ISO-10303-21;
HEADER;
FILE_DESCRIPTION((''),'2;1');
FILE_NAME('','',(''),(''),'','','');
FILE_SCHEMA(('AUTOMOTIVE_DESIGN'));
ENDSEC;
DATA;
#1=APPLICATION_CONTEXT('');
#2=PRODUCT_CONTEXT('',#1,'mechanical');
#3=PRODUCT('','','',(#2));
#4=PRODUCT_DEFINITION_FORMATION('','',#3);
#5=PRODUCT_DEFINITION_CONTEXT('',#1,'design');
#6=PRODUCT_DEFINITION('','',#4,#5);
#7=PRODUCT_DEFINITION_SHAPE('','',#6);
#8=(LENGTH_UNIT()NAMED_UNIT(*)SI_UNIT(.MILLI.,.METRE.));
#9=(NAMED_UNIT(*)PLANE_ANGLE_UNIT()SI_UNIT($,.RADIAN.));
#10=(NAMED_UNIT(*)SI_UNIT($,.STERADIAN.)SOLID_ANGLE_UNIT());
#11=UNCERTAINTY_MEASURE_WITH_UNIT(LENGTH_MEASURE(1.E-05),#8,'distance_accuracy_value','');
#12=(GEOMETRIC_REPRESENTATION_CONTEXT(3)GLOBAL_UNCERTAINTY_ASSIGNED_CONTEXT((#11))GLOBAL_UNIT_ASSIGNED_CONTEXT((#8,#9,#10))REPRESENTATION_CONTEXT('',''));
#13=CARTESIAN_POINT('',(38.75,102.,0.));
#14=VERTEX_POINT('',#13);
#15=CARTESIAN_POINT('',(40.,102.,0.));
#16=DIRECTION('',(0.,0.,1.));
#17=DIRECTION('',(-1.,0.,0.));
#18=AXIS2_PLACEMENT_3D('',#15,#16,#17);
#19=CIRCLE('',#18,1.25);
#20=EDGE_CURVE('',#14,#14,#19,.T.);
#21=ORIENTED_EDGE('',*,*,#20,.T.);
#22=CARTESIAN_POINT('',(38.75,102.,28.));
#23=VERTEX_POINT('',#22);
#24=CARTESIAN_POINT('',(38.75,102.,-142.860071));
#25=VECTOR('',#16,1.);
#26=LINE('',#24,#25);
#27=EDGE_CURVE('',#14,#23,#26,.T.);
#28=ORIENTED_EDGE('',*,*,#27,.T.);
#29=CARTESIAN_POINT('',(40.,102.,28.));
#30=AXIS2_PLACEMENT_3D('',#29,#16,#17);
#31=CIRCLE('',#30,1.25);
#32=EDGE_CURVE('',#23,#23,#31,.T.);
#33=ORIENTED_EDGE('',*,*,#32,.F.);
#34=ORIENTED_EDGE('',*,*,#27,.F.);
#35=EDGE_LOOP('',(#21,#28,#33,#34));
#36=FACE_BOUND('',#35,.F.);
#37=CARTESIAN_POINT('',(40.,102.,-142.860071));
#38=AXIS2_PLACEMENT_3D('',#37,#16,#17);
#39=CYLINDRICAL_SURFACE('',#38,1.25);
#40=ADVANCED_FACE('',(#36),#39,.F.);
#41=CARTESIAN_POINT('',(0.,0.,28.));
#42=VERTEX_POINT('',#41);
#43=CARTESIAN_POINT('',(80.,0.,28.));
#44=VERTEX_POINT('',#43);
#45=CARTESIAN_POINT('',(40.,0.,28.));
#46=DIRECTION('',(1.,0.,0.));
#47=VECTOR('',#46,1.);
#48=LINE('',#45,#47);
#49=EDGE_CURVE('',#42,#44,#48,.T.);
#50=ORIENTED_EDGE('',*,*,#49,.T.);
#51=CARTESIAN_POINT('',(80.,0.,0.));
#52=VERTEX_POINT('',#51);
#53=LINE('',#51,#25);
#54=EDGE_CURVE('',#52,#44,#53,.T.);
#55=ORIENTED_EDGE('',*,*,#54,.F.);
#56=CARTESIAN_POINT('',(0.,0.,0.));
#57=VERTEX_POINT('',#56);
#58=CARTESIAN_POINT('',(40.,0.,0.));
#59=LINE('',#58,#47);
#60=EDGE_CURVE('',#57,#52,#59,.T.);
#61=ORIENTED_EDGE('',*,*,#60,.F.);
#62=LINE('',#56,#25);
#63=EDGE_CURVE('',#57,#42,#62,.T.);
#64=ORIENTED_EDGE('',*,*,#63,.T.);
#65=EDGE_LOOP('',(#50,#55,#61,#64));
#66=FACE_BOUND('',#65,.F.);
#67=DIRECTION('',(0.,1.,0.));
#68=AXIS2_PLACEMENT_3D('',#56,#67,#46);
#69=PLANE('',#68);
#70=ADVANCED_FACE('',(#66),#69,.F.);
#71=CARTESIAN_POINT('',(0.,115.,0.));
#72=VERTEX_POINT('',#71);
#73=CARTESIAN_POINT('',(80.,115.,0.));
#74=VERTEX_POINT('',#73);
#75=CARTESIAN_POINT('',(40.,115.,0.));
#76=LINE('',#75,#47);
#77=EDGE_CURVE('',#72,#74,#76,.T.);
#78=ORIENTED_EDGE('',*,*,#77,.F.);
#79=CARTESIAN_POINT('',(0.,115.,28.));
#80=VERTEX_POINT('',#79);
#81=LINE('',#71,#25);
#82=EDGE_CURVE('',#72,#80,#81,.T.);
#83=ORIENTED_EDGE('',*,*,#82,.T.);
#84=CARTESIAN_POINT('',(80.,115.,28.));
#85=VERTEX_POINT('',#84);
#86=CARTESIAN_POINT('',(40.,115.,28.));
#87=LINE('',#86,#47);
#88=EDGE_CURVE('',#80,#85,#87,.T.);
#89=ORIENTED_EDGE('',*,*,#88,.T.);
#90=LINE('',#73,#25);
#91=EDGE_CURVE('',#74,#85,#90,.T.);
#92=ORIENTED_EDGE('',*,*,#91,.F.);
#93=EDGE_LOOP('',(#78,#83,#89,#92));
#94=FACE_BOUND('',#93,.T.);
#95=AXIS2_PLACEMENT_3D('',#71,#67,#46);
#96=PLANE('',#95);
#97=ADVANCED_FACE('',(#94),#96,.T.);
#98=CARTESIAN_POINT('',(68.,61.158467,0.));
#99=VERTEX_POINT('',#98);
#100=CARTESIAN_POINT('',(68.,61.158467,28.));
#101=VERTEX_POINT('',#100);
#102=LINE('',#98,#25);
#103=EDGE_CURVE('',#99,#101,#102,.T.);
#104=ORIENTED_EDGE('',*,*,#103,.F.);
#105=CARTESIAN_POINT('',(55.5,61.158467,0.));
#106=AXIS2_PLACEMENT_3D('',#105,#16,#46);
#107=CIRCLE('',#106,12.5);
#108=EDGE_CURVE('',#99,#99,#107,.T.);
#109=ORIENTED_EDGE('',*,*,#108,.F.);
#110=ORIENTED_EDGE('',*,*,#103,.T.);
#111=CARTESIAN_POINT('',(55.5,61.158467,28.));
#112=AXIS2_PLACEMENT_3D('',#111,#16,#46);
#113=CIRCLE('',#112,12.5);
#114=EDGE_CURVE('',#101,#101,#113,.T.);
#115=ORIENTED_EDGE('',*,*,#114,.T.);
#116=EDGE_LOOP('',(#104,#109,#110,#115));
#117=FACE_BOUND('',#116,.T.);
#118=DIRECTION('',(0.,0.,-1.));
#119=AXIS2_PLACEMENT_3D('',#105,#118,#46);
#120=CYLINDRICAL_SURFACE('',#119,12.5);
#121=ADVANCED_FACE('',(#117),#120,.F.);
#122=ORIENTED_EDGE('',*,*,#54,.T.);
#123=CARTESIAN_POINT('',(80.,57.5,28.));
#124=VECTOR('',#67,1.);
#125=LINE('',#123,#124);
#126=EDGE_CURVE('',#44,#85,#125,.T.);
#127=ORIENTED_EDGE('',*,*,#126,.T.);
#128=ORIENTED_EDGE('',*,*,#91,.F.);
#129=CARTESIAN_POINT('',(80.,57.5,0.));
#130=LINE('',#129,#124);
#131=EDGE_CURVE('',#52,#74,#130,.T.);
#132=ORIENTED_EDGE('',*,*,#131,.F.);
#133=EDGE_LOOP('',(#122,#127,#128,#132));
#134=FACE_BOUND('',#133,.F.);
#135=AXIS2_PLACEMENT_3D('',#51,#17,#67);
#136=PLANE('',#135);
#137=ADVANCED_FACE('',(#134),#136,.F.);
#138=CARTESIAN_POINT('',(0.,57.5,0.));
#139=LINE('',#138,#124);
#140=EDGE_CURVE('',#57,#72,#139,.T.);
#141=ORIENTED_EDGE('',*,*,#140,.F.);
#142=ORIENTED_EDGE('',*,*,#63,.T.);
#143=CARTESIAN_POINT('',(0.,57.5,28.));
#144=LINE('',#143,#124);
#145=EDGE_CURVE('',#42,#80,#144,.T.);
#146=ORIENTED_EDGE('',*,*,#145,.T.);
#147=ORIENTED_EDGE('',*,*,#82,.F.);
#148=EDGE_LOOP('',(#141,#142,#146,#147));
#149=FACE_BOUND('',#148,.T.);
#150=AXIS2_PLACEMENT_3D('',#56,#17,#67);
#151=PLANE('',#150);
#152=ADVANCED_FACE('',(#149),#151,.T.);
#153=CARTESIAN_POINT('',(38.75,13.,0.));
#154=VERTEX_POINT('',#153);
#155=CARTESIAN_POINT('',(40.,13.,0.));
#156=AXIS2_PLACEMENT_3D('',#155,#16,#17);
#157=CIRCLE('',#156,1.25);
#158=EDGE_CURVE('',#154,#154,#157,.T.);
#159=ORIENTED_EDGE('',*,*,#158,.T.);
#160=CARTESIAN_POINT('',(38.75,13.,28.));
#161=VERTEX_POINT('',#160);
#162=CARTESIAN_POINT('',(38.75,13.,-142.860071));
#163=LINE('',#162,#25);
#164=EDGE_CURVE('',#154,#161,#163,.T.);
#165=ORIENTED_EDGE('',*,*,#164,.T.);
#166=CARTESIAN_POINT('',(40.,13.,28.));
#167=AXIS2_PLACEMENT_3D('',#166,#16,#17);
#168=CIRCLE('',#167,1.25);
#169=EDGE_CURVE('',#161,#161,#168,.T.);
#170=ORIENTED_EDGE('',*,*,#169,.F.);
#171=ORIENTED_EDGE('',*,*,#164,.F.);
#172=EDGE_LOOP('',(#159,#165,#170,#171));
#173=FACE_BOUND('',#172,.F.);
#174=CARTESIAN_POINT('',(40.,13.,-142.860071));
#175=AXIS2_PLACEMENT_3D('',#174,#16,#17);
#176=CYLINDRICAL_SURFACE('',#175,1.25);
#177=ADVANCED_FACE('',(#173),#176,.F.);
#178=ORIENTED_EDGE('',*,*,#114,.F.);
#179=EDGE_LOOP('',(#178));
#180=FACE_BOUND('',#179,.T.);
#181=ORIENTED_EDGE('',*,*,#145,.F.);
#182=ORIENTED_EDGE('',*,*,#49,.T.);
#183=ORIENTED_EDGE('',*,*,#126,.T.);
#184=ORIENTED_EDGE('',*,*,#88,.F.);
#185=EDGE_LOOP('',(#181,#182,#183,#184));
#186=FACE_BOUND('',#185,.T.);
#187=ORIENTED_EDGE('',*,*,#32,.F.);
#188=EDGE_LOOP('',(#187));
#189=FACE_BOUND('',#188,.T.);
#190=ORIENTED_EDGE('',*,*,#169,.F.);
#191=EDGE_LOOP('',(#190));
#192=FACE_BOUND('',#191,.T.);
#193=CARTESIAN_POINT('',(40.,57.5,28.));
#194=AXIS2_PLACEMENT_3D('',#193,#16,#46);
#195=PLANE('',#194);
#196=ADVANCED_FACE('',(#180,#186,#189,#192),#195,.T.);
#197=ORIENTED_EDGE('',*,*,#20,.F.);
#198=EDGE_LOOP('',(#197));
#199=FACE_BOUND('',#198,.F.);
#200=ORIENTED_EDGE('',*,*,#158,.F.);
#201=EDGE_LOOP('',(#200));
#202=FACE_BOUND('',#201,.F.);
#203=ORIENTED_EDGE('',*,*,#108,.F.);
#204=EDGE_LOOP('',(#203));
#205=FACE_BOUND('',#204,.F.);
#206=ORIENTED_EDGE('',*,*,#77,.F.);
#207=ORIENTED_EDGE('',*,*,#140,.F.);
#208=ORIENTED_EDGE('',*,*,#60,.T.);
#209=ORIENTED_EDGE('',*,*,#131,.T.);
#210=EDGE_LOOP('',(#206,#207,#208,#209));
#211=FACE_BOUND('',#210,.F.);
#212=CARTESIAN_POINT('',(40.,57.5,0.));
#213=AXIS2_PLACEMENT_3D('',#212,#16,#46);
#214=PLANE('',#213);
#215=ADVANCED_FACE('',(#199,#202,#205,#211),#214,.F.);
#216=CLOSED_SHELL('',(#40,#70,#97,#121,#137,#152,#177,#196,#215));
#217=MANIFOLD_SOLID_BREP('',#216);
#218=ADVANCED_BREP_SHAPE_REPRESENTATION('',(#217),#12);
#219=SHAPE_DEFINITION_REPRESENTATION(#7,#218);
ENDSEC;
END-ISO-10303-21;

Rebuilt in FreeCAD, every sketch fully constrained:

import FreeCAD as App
import Part
import Sketcher

doc = App.newDocument("Part")
body = doc.addObject("PartDesign::Body", "Body")

sketch1 = body.newObject("Sketcher::SketchObject", "Sketch")
sketch1.AttachmentSupport = (doc.getObject("XY_Plane"), [""])
sketch1.MapMode = "FlatFace"
sketch1.addGeometry(Part.LineSegment(App.Vector(0, 115, 0), App.Vector(0, 0, 0)), False)
sketch1.addGeometry(Part.LineSegment(App.Vector(0, 0, 0), App.Vector(80, 0, 0)), False)
sketch1.addGeometry(Part.LineSegment(App.Vector(80, 0, 0), App.Vector(80, 115, 0)), False)
sketch1.addGeometry(Part.LineSegment(App.Vector(80, 115, 0), App.Vector(0, 115, 0)), False)
sketch1.addGeometry(Part.Circle(App.Vector(56, 61, 0), App.Vector(0, 0, 1), 12), False)
sketch1.addConstraint(Sketcher.Constraint("Coincident", 0, 2, 1, 1))
sketch1.addConstraint(Sketcher.Constraint("Coincident", 1, 2, 2, 1))
sketch1.addConstraint(Sketcher.Constraint("Coincident", 2, 2, 3, 1))
sketch1.addConstraint(Sketcher.Constraint("Coincident", 3, 2, 0, 1))
sketch1.addConstraint(Sketcher.Constraint("Vertical", 0))
sketch1.addConstraint(Sketcher.Constraint("Horizontal", 1))
sketch1.addConstraint(Sketcher.Constraint("Vertical", 2))
sketch1.addConstraint(Sketcher.Constraint("Horizontal", 3))
sketch1.addConstraint(Sketcher.Constraint("Coincident", 0, 2, -1, 1))
sketch1.addConstraint(Sketcher.Constraint("Diameter", 4, 25.0))
sketch1.addConstraint(Sketcher.Constraint("DistanceX", 1, 1, 1, 2, 80.0))
sketch1.addConstraint(Sketcher.Constraint("DistanceY", 0, 2, 0, 1, 115.0))
sketch1.addConstraint(Sketcher.Constraint("DistanceX", -1, 1, 4, 3, 55.5))
sketch1.addConstraint(Sketcher.Constraint("DistanceY", -1, 1, 4, 3, 61.158467))
pad1 = body.newObject("PartDesign::Pad", "Pad")
pad1.Profile = sketch1
pad1.Length = 28

sketch2 = body.newObject("Sketcher::SketchObject", "Sketch001")
sketch2.AttachmentSupport = (doc.getObject("XY_Plane"), [""])
sketch2.MapMode = "FlatFace"
sketch2.addGeometry(Part.Circle(App.Vector(40, 13, 0), App.Vector(0, 0, 1), 1.2), False)
sketch2.addGeometry(Part.Circle(App.Vector(40, 102, 0), App.Vector(0, 0, 1), 1.2), False)
sketch2.addConstraint(Sketcher.Constraint("Equal", 0, 1))
sketch2.addConstraint(Sketcher.Constraint("Vertical", 0, 3, 1, 3))
sketch2.addConstraint(Sketcher.Constraint("Diameter", 0, 2.5))
sketch2.addConstraint(Sketcher.Constraint("DistanceX", -1, 1, 0, 3, 40.0))
sketch2.addConstraint(Sketcher.Constraint("DistanceY", -1, 1, 0, 3, 13.0))
sketch2.addConstraint(Sketcher.Constraint("DistanceY", -1, 1, 1, 3, 102.0))
doc.recompute()
hole = body.newObject("PartDesign::Hole", "Hole")
hole.Profile = sketch2
hole.ThreadType = "None"
hole.Diameter = 2.5
hole.DepthType = "ThroughAll"
hole.Reversed = True

doc.recompute()
